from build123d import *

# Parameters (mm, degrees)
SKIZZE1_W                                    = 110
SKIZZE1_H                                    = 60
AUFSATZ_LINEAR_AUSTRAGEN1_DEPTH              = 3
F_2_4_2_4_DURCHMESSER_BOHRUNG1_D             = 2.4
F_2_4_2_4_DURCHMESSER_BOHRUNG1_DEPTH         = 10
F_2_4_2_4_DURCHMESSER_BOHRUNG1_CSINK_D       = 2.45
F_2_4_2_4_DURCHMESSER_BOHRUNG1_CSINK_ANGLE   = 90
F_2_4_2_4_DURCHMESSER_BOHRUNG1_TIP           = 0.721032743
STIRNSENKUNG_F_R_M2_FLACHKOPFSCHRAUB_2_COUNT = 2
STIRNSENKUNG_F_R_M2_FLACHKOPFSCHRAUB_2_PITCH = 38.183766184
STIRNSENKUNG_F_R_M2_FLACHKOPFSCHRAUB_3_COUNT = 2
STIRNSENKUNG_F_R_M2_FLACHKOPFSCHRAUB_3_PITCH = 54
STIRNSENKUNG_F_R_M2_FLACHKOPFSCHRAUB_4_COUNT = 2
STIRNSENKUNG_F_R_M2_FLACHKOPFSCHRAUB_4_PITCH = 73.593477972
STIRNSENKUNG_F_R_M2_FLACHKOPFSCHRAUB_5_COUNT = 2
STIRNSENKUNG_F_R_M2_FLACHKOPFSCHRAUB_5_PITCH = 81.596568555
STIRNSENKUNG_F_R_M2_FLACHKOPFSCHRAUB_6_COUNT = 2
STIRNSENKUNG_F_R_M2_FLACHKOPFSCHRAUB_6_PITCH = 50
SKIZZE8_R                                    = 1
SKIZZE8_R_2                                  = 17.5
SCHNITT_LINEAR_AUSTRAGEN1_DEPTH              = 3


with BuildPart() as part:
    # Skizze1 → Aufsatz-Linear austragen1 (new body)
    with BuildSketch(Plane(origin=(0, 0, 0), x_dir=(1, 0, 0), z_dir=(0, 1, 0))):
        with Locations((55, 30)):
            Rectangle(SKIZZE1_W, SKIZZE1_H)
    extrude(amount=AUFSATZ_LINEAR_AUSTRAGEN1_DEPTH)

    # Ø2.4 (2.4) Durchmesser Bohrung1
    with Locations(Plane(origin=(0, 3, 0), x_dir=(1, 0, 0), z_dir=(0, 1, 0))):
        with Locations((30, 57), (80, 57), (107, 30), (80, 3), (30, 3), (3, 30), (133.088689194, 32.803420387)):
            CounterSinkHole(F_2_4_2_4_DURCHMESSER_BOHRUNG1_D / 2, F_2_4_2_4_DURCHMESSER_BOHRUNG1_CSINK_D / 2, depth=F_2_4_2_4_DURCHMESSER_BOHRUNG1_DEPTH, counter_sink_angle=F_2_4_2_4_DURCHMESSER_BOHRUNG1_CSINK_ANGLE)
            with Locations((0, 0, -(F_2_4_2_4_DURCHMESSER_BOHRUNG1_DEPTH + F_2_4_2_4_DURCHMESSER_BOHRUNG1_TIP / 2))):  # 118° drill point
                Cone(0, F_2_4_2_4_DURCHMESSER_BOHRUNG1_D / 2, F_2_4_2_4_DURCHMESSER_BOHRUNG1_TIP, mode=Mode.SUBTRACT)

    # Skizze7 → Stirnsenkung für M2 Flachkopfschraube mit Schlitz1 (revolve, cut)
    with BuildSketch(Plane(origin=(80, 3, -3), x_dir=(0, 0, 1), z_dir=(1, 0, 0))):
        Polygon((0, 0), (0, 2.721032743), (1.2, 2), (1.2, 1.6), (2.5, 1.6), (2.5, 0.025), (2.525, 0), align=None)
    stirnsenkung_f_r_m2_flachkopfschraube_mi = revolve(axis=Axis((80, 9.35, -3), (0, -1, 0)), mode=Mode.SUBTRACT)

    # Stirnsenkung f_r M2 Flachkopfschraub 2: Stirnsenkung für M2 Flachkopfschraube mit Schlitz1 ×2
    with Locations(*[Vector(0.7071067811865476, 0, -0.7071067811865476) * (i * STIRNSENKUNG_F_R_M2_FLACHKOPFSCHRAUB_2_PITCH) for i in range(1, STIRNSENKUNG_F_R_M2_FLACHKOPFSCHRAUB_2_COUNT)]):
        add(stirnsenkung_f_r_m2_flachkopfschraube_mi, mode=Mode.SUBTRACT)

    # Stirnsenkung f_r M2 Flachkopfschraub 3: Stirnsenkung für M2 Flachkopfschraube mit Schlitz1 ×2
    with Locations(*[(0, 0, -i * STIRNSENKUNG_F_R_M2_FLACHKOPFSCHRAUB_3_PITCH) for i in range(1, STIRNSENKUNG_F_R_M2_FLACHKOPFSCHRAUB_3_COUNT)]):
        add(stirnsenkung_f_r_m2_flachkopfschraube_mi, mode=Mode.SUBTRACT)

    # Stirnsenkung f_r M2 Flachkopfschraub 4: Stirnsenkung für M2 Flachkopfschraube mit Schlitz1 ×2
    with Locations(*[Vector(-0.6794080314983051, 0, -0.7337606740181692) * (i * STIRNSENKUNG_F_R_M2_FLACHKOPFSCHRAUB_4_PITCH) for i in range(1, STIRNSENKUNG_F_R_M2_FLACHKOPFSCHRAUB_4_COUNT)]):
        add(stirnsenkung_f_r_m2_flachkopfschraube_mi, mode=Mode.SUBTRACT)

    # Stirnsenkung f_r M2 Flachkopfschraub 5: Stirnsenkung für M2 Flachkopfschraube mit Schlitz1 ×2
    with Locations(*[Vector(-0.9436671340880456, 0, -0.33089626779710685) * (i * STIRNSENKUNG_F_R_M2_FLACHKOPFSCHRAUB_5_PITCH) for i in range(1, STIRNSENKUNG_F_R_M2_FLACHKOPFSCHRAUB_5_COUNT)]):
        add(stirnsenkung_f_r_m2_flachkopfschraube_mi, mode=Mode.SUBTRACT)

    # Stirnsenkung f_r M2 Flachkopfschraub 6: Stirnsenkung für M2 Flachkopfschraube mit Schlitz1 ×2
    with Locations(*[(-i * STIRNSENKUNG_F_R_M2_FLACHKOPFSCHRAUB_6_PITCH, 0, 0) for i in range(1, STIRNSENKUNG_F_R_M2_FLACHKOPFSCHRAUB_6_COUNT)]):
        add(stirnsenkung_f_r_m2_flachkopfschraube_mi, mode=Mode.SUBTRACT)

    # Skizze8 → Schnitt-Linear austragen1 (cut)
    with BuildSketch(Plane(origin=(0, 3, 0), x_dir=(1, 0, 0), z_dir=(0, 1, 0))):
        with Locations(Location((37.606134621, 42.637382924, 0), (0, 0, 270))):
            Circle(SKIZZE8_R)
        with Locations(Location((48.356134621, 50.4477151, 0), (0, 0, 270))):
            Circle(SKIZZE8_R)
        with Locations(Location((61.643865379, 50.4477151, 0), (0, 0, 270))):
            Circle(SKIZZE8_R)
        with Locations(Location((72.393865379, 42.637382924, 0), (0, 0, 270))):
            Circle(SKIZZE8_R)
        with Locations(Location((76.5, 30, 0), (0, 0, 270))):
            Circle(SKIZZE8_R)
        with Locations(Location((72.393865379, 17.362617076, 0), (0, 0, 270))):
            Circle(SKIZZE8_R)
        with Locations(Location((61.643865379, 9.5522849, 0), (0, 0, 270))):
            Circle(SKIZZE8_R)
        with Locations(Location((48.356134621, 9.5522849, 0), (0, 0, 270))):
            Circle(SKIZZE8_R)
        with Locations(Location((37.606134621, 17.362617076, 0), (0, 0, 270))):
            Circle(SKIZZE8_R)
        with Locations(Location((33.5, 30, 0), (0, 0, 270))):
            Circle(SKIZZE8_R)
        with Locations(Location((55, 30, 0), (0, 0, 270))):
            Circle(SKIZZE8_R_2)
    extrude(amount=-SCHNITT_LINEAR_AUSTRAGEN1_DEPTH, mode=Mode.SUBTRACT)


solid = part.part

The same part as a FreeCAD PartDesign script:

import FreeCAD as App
import Part
import Sketcher
from FreeCAD import Vector
Q = App.Units.Quantity

doc = App.newDocument("Part")
body = doc.addObject("PartDesign::Body", "Body")

# Sketch on XZ plane
sketch1 = body.newObject("Sketcher::SketchObject", "Sketch")
sketch1.AttachmentSupport = (doc.getObject("XZ_Plane"), [""])
sketch1.MapMode = "FlatFace"
sketch1.addGeometry(Part.LineSegment(Vector(0, -60, 0), Vector(0, 0, 0)), False)
sketch1.addGeometry(Part.LineSegment(Vector(0, 0, 0), Vector(110, 0, 0)), False)
sketch1.addGeometry(Part.LineSegment(Vector(110, 0, 0), Vector(110, -60, 0)), False)
sketch1.addGeometry(Part.LineSegment(Vector(110, -60, 0), Vector(0, -60, 0)), False)
sketch1.addConstraint(Sketcher.Constraint("Coincident", 0, 2, 1, 1))
sketch1.addConstraint(Sketcher.Constraint("Coincident", 1, 2, 2, 1))
sketch1.addConstraint(Sketcher.Constraint("Coincident", 2, 2, 3, 1))
sketch1.addConstraint(Sketcher.Constraint("Coincident", 3, 2, 0, 1))
sketch1.addConstraint(Sketcher.Constraint("Vertical", 0))
sketch1.addConstraint(Sketcher.Constraint("Horizontal", 1))
sketch1.addConstraint(Sketcher.Constraint("Vertical", 2))
sketch1.addConstraint(Sketcher.Constraint("Horizontal", 3))
sketch1.addConstraint(Sketcher.Constraint("Coincident", 0, 2, -1, 1))
sketch1.addConstraint(Sketcher.Constraint("DistanceX", 1, 1, 1, 2, 110.0))
sketch1.addConstraint(Sketcher.Constraint("DistanceY", 0, 1, 0, 2, 60.0))
pad1 = body.newObject("PartDesign::Pad", "Pad")
pad1.Profile = sketch1
pad1.Length = 3
pad1.Reversed = True

# Sketch on XZ plane
sketch2 = body.newObject("Sketcher::SketchObject", "Sketch001")
sketch2.AttachmentSupport = (doc.getObject("XZ_Plane"), [""])
sketch2.MapMode = "FlatFace"
sketch2.AttachmentOffset = App.Placement(Vector(0, 0, -3), App.Rotation())
sketch2.addGeometry(Part.Circle(Vector(30, -57, 0), Vector(0, 0, 1), 1.2), False)
sketch2.addGeometry(Part.Circle(Vector(80, -57, 0), Vector(0, 0, 1), 1.2), False)
sketch2.addGeometry(Part.Circle(Vector(107, -30, 0), Vector(0, 0, 1), 1.2), False)
sketch2.addGeometry(Part.Circle(Vector(80, -3, 0), Vector(0, 0, 1), 1.2), False)
sketch2.addGeometry(Part.Circle(Vector(30, -3, 0), Vector(0, 0, 1), 1.2), False)
sketch2.addGeometry(Part.Circle(Vector(3, -30, 0), Vector(0, 0, 1), 1.2), False)
sketch2.addGeometry(Part.Circle(Vector(133.1, -32.8, 0), Vector(0, 0, 1), 1.2), False)
sketch2.addConstraint(Sketcher.Constraint("Equal", 0, 1))
sketch2.addConstraint(Sketcher.Constraint("Equal", 1, 2))
sketch2.addConstraint(Sketcher.Constraint("Equal", 2, 3))
sketch2.addConstraint(Sketcher.Constraint("Equal", 3, 4))
sketch2.addConstraint(Sketcher.Constraint("Equal", 4, 5))
sketch2.addConstraint(Sketcher.Constraint("Equal", 5, 6))
sketch2.addConstraint(Sketcher.Constraint("Horizontal", 0, 3, 1, 3))
sketch2.addConstraint(Sketcher.Constraint("Horizontal", 3, 3, 4, 3))
sketch2.addConstraint(Sketcher.Constraint("Horizontal", 2, 3, 5, 3))
sketch2.addConstraint(Sketcher.Constraint("Vertical", 1, 3, 3, 3))
sketch2.addConstraint(Sketcher.Constraint("Vertical", 0, 3, 4, 3))
sketch2.addConstraint(Sketcher.Constraint("Diameter", 0, 2.4))
sketch2.addConstraint(Sketcher.Constraint("DistanceX", -1, 1, 0, 3, 30.0))
sketch2.addConstraint(Sketcher.Constraint("DistanceY", 0, 3, -1, 1, 57.0))
sketch2.addConstraint(Sketcher.Constraint("DistanceX", -1, 1, 1, 3, 80.0))
sketch2.addConstraint(Sketcher.Constraint("DistanceX", -1, 1, 2, 3, 107.0))
sketch2.addConstraint(Sketcher.Constraint("DistanceY", 2, 3, -1, 1, 30.0))
sketch2.addConstraint(Sketcher.Constraint("DistanceY", 3, 3, -1, 1, 3.0))
sketch2.addConstraint(Sketcher.Constraint("DistanceX", -1, 1, 5, 3, 3.0))
sketch2.addConstraint(Sketcher.Constraint("DistanceX", -1, 1, 6, 3, 133.088689))
sketch2.addConstraint(Sketcher.Constraint("DistanceY", 6, 3, -1, 1, 32.80342))
doc.recompute()
hole = body.newObject("PartDesign::Hole", "Hole")
hole.Profile = sketch2
hole.ThreadType = "None"
hole.Diameter = 2.4
hole.DepthType = "Dimension"
hole.Depth = 10
hole.DrillPoint = "Angled"
hole.DrillPointAngle = 118
hole.HoleCutType = "Countersink"
hole.HoleCutDiameter = 2.45
hole.HoleCutCountersinkAngle = 90
hole.Reversed = True

# Sketch on YZ plane
sketch3 = body.newObject("Sketcher::SketchObject", "Sketch002")
sketch3.AttachmentSupport = (doc.getObject("YZ_Plane"), [""])
sketch3.MapMode = "FlatFace"
sketch3.AttachmentOffset = App.Placement(Vector(0, 0, 80), App.Rotation())
sketch3.addGeometry(Part.LineSegment(Vector(0.279, -3, 0), Vector(3, -3, 0)), False)
sketch3.addGeometry(Part.LineSegment(Vector(3, -3, 0), Vector(3, -0.475, 0)), False)
sketch3.addGeometry(Part.LineSegment(Vector(3, -0.475, 0), Vector(2.975, -0.5, 0)), False)
sketch3.addGeometry(Part.LineSegment(Vector(2.975, -0.5, 0), Vector(1.4, -0.5, 0)), False)
sketch3.addGeometry(Part.LineSegment(Vector(1.4, -0.5, 0), Vector(1.4, -1.8, 0)), False)
sketch3.addGeometry(Part.LineSegment(Vector(1.4, -1.8, 0), Vector(1, -1.8, 0)), False)
sketch3.addGeometry(Part.LineSegment(Vector(1, -1.8, 0), Vector(0.279, -3, 0)), False)
sketch3.addGeometry(Part.LineSegment(Vector(3, -3, 0), Vector(0.279, -3, 0)), True)  # axis
sketch3.addConstraint(Sketcher.Constraint("Coincident", 0, 2, 1, 1))
sketch3.addConstraint(Sketcher.Constraint("Coincident", 1, 2, 2, 1))
sketch3.addConstraint(Sketcher.Constraint("Coincident", 2, 2, 3, 1))
sketch3.addConstraint(Sketcher.Constraint("Coincident", 3, 2, 4, 1))
sketch3.addConstraint(Sketcher.Constraint("Coincident", 4, 2, 5, 1))
sketch3.addConstraint(Sketcher.Constraint("Coincident", 5, 2, 6, 1))
sketch3.addConstraint(Sketcher.Constraint("Coincident", 6, 2, 0, 1))
sketch3.addConstraint(Sketcher.Constraint("Horizontal", 0))
sketch3.addConstraint(Sketcher.Constraint("Vertical", 1))
sketch3.addConstraint(Sketcher.Constraint("Horizontal", 3))
sketch3.addConstraint(Sketcher.Constraint("Vertical", 4))
sketch3.addConstraint(Sketcher.Constraint("Horizontal", 5))
sketch3.addConstraint(Sketcher.Constraint("Horizontal", 7))
sketch3.addConstraint(Sketcher.Constraint("Coincident", 7, 1, 0, 2))
sketch3.addConstraint(Sketcher.Constraint("Equal", 0, 7))
sketch3.addConstraint(Sketcher.Constraint("Angle", 2, Q("-135 deg")))
sketch3.addConstraint(Sketcher.Constraint("Angle", 6, Q("-121 deg")))
sketch3.addConstraint(Sketcher.Constraint("DistanceX", 5, 2, 5, 1, 0.4))
sketch3.addConstraint(Sketcher.Constraint("DistanceY", 4, 2, 4, 1, 1.3))
sketch3.addConstraint(Sketcher.Constraint("DistanceX", -1, 1, 0, 2, 3.0))
sketch3.addConstraint(Sketcher.Constraint("DistanceY", 0, 2, -1, 1, 3.0))
sketch3.addConstraint(Sketcher.Constraint("DistanceX", -1, 1, 5, 2, 1.0))
sketch3.addConstraint(Sketcher.Constraint("DistanceY", 2, 2, -1, 1, 0.5))
sketch3.addConstraint(Sketcher.Constraint("DistanceX", 3, 2, 3, 1, 1.575))
groove = body.newObject("PartDesign::Groove", "Groove")
groove.Profile = sketch3
groove.ReferenceAxis = (sketch3, ["Axis0"])
groove.Angle = 360
doc.recompute()

datumline = body.newObject("PartDesign::Line", "DatumLine")
datumline.Placement = App.Placement(Vector(0, 0, 0), App.Rotation(Vector(0, 0, 1), Vector(0.707106781, 0, -0.707106781)))
linearpattern = body.newObject("PartDesign::LinearPattern", "LinearPattern")
linearpattern.Originals = [groove]
linearpattern.Direction = (datumline, [""])
linearpattern.Mode = "offset"
linearpattern.Offset = 38.183766
linearpattern.Occurrences = 2
body.Tip = linearpattern
doc.recompute()

linearpattern2 = body.newObject("PartDesign::LinearPattern", "LinearPattern001")
linearpattern2.Originals = [groove]
linearpattern2.Direction = (doc.getObject("Z_Axis"), [""])
linearpattern2.Mode = "offset"
linearpattern2.Offset = 54
linearpattern2.Occurrences = 2
linearpattern2.Reversed = True
body.Tip = linearpattern2
doc.recompute()

datumline2 = body.newObject("PartDesign::Line", "DatumLine001")
datumline2.Placement = App.Placement(Vector(0, 0, 0), App.Rotation(Vector(0, 0, 1), Vector(-0.679408031, 0, -0.733760674)))
linearpattern3 = body.newObject("PartDesign::LinearPattern", "LinearPattern002")
linearpattern3.Originals = [groove]
linearpattern3.Direction = (datumline2, [""])
linearpattern3.Mode = "offset"
linearpattern3.Offset = 73.593478
linearpattern3.Occurrences = 2
body.Tip = linearpattern3
doc.recompute()

datumline3 = body.newObject("PartDesign::Line", "DatumLine002")
datumline3.Placement = App.Placement(Vector(0, 0, 0), App.Rotation(Vector(0, 0, 1), Vector(-0.943667134, 0, -0.330896268)))
linearpattern4 = body.newObject("PartDesign::LinearPattern", "LinearPattern003")
linearpattern4.Originals = [groove]
linearpattern4.Direction = (datumline3, [""])
linearpattern4.Mode = "offset"
linearpattern4.Offset = 81.596569
linearpattern4.Occurrences = 2
body.Tip = linearpattern4
doc.recompute()

linearpattern5 = body.newObject("PartDesign::LinearPattern", "LinearPattern004")
linearpattern5.Originals = [groove]
linearpattern5.Direction = (doc.getObject("X_Axis"), [""])
linearpattern5.Mode = "offset"
linearpattern5.Offset = 50
linearpattern5.Occurrences = 2
linearpattern5.Reversed = True
body.Tip = linearpattern5

# Sketch on XZ plane
sketch4 = body.newObject("Sketcher::SketchObject", "Sketch003")
sketch4.AttachmentSupport = (doc.getObject("XZ_Plane"), [""])
sketch4.MapMode = "FlatFace"
sketch4.AttachmentOffset = App.Placement(Vector(0, 0, -3), App.Rotation())
sketch4.addGeometry(Part.Circle(Vector(37.6, -42.6, 0), Vector(0, 0, 1), 1), False)
sketch4.addGeometry(Part.Circle(Vector(48.4, -50.4, 0), Vector(0, 0, 1), 1), False)
sketch4.addGeometry(Part.Circle(Vector(61.6, -50.4, 0), Vector(0, 0, 1), 1), False)
sketch4.addGeometry(Part.Circle(Vector(72.4, -42.6, 0), Vector(0, 0, 1), 1), False)
sketch4.addGeometry(Part.Circle(Vector(76.5, -30, 0), Vector(0, 0, 1), 1), False)
sketch4.addGeometry(Part.Circle(Vector(72.4, -17.4, 0), Vector(0, 0, 1), 1), False)
sketch4.addGeometry(Part.Circle(Vector(61.6, -9.6, 0), Vector(0, 0, 1), 1), False)
sketch4.addGeometry(Part.Circle(Vector(48.4, -9.6, 0), Vector(0, 0, 1), 1), False)
sketch4.addGeometry(Part.Circle(Vector(37.6, -17.4, 0), Vector(0, 0, 1), 1), False)
sketch4.addGeometry(Part.Circle(Vector(33.5, -30, 0), Vector(0, 0, 1), 1), False)
sketch4.addGeometry(Part.Circle(Vector(55, -30, 0), Vector(0, 0, 1), 17.5), False)
sketch4.addConstraint(Sketcher.Constraint("Equal", 0, 1))
sketch4.addConstraint(Sketcher.Constraint("Equal", 1, 2))
sketch4.addConstraint(Sketcher.Constraint("Equal", 2, 3))
sketch4.addConstraint(Sketcher.Constraint("Equal", 3, 4))
sketch4.addConstraint(Sketcher.Constraint("Equal", 4, 5))
sketch4.addConstraint(Sketcher.Constraint("Equal", 5, 6))
sketch4.addConstraint(Sketcher.Constraint("Equal", 6, 7))
sketch4.addConstraint(Sketcher.Constraint("Equal", 7, 8))
sketch4.addConstraint(Sketcher.Constraint("Equal", 8, 9))
sketch4.addConstraint(Sketcher.Constraint("Horizontal", 1, 3, 2, 3))
sketch4.addConstraint(Sketcher.Constraint("Horizontal", 0, 3, 3, 3))
sketch4.addConstraint(Sketcher.Constraint("Horizontal", 6, 3, 7, 3))
sketch4.addConstraint(Sketcher.Constraint("Horizontal", 5, 3, 8, 3))
sketch4.addConstraint(Sketcher.Constraint("Horizontal", 4, 3, 9, 3))
sketch4.addConstraint(Sketcher.Constraint("Horizontal", 9, 3, 10, 3))
sketch4.addConstraint(Sketcher.Constraint("Vertical", 3, 3, 5, 3))
sketch4.addConstraint(Sketcher.Constraint("Vertical", 2, 3, 6, 3))
sketch4.addConstraint(Sketcher.Constraint("Vertical", 1, 3, 7, 3))
sketch4.addConstraint(Sketcher.Constraint("Vertical", 0, 3, 8, 3))
sketch4.addConstraint(Sketcher.Constraint("Diameter", 0, 2.0))
sketch4.addConstraint(Sketcher.Constraint("Diameter", 10, 35.0))
sketch4.addConstraint(Sketcher.Constraint("DistanceY", 4, 3, -1, 1, 30.0))
sketch4.addConstraint(Sketcher.Constraint("DistanceX", -1, 1, 10, 3, 55.0))
sketch4.addConstraint(Sketcher.Constraint("DistanceX", -1, 1, 4, 3, 76.5))
sketch4.addConstraint(Sketcher.Constraint("DistanceX", -1, 1, 9, 3, 33.5))
sketch4.addConstraint(Sketcher.Constraint("DistanceX", 0, 3, 1, 3, 10.75))
sketch4.addConstraint(Sketcher.Constraint("DistanceX", 2, 3, 3, 3, 10.75))
sketch4.addConstraint(Sketcher.Constraint("DistanceY", 2, 3, 5, 3, 33.085098))
sketch4.addConstraint(Sketcher.Constraint("DistanceY", 3, 3, 6, 3, 33.085098))
sketch4.addConstraint(Sketcher.Constraint("DistanceX", 1, 3, 2, 3, 13.287731))
sketch4.addConstraint(Sketcher.Constraint("DistanceY", 2, 3, 6, 3, 40.89543))
sketch4.addConstraint(Sketcher.Constraint("DistanceX", -1, 1, 0, 3, 37.606135))
sketch4.addConstraint(Sketcher.Constraint("DistanceY", 0, 3, -1, 1, 42.637383))
pocket1 = body.newObject("PartDesign::Pocket", "Pocket")
pocket1.Profile = sketch4
pocket1.Length = 3
pocket1.Reversed = True

doc.recompute()
